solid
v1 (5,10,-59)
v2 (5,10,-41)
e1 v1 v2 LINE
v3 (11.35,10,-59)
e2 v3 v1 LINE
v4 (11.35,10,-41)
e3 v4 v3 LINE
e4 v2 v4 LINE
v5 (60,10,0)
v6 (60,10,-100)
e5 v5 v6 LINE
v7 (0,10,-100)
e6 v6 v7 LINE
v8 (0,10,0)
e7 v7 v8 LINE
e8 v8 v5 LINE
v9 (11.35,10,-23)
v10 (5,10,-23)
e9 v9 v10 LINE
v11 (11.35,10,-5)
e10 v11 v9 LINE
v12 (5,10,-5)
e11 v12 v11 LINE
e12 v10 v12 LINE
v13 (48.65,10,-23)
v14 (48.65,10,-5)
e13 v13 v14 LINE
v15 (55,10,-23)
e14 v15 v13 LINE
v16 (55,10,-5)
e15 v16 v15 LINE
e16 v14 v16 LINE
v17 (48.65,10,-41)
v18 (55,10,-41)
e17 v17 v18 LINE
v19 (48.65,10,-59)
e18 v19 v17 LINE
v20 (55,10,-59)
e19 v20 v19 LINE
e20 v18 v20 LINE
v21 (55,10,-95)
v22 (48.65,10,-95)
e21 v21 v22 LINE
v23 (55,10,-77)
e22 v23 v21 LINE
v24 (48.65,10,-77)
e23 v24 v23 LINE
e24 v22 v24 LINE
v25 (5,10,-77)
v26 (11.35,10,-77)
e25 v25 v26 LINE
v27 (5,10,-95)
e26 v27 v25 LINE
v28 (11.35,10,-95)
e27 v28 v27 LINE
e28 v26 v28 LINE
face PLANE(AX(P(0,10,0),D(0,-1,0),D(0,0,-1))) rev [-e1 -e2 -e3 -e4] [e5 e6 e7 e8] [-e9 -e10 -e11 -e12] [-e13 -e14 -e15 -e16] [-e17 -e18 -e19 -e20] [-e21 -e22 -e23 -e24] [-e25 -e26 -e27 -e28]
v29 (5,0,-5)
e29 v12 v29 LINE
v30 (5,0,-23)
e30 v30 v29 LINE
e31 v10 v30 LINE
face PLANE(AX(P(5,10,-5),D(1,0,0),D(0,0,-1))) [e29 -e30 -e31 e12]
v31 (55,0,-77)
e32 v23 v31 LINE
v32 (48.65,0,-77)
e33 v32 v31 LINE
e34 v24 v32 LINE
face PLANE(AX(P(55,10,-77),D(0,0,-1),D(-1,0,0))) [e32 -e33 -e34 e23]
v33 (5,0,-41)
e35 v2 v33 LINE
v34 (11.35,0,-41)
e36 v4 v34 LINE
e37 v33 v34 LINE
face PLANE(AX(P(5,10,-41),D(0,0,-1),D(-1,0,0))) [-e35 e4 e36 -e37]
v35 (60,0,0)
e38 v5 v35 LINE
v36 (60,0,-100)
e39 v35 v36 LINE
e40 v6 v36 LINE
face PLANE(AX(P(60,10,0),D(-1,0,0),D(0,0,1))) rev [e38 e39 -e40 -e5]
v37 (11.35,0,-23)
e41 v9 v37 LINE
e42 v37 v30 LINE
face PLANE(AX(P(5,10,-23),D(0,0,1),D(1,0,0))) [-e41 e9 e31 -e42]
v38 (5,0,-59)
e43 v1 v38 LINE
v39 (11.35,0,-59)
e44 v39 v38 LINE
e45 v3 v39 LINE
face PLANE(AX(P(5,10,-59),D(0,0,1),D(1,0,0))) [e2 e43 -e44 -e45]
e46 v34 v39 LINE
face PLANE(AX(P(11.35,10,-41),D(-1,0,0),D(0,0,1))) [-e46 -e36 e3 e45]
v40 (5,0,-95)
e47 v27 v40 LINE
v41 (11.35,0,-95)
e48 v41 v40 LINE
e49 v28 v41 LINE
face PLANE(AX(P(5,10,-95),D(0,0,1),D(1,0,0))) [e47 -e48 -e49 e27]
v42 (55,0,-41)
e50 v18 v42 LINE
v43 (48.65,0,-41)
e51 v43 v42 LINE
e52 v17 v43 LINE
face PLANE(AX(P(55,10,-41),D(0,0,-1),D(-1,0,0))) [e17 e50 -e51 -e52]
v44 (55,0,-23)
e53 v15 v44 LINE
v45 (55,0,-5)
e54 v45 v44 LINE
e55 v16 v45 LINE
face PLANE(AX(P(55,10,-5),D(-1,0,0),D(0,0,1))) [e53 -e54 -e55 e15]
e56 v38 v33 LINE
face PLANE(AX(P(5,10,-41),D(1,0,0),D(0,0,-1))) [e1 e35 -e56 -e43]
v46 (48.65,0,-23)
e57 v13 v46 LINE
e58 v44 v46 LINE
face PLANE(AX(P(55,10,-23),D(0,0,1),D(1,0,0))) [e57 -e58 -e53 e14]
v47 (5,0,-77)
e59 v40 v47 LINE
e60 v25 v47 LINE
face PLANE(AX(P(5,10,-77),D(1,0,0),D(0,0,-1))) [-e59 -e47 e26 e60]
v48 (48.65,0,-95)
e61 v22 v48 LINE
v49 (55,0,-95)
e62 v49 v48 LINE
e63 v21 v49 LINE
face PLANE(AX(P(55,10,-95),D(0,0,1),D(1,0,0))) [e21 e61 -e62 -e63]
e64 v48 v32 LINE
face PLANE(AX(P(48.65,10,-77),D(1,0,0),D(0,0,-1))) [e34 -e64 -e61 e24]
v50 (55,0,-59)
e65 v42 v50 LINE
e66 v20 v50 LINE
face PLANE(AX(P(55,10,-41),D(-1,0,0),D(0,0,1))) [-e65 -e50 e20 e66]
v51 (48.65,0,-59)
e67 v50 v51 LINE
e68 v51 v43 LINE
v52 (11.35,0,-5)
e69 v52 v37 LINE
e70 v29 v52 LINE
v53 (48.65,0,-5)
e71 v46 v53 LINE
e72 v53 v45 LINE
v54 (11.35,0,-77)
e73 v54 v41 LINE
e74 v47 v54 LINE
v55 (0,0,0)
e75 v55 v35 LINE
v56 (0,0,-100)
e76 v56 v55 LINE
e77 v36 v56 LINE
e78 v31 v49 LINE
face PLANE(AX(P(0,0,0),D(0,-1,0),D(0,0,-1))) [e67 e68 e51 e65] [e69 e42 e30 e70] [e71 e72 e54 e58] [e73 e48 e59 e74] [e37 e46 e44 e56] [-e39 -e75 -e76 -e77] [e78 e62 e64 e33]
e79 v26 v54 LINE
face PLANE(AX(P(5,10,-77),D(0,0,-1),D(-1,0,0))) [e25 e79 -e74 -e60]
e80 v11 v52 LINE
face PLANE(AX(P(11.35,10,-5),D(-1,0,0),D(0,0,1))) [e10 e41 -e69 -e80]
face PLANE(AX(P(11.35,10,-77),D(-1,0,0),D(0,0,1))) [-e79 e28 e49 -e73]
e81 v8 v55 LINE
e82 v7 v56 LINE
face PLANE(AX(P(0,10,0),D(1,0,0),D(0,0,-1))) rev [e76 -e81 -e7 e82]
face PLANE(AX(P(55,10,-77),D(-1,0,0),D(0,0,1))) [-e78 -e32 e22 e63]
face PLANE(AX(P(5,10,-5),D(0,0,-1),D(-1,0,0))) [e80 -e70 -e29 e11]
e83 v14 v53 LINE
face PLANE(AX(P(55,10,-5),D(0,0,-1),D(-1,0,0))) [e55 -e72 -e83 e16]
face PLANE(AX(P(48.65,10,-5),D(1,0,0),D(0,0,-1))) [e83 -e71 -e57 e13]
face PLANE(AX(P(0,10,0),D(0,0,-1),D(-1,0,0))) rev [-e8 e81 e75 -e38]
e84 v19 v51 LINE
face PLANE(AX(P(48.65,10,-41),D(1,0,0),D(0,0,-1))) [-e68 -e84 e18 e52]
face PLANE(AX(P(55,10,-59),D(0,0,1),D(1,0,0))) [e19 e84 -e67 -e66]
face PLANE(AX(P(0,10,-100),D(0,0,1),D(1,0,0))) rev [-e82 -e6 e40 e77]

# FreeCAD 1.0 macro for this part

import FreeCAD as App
import Part
import Sketcher
Q = App.Units.Quantity


def add_polygon(sketch, points):
    """Adds a closed chain of lines whose ends are joined by coincident constraints."""
    first, n = sketch.GeometryCount, len(points)
    for a, b in zip(points, points[1:] + points[:1]):
        sketch.addGeometry(Part.LineSegment(App.Vector(*a, 0), App.Vector(*b, 0)), False)
    for i in range(n):
        sketch.addConstraint(Sketcher.Constraint("Coincident", first + i, 2, first + (i + 1) % n, 1))

doc = App.newDocument("Part")
params = doc.addObject("Spreadsheet::Sheet", "Params")
for row, (alias, value) in enumerate([
    ("sketch1_width", "60 mm"),
    ("sketch1_height", "100 mm"),
    ("pad1_length", "10 mm"),
    ("sketch2_height", "18 mm"),
    ("sketch2_width", "6.35 mm"),
    ("pocket1_length", "10 mm"),
], start=1):
    params.set(f"A{row}", alias)
    params.set(f"B{row}", "=" + value)
    params.setAlias(f"B{row}", alias)

body = doc.addObject("PartDesign::Body", "Body")

sketch1 = body.newObject("Sketcher::SketchObject", "Sketch")
sketch1.AttachmentSupport = (doc.getObject("XZ_Plane"), [""])
sketch1.MapMode = "FlatFace"
add_polygon(sketch1, [(0, -100), (0, 0), (60, 0), (60, -100)])
sketch1.addConstraint([
    Sketcher.Constraint("Vertical", 0),
    Sketcher.Constraint("Horizontal", 1),
    Sketcher.Constraint("Vertical", 2),
    Sketcher.Constraint("Horizontal", 3),
    Sketcher.Constraint("Coincident", 0, 2, -1, 1),
    Sketcher.Constraint("DistanceX", 1, 1, 1, 2, Q("60 mm")),
    Sketcher.Constraint("DistanceY", 0, 1, 0, 2, Q("100 mm")),
])
sketch1.setExpression("Constraints[9]", "Params.sketch1_width")
sketch1.setExpression("Constraints[10]", "Params.sketch1_height")
pad1 = body.newObject("PartDesign::Pad", "Pad")
pad1.Profile = sketch1
pad1.setExpression("Length", "Params.pad1_length")
pad1.Reversed = True

sketch2 = body.newObject("Sketcher::SketchObject", "Sketch001")
sketch2.AttachmentSupport = (doc.getObject("XZ_Plane"), [""])
sketch2.MapMode = "FlatFace"
add_polygon(sketch2, [(5, -23), (5, -5), (11, -5), (11, -23)])
add_polygon(sketch2, [(5, -59), (5, -41), (11, -41), (11, -59)])
add_polygon(sketch2, [(5, -95), (5, -77), (11, -77), (11, -95)])
add_polygon(sketch2, [(49, -95), (49, -77), (55, -77), (55, -95)])
add_polygon(sketch2, [(49, -59), (49, -41), (55, -41), (55, -59)])
add_polygon(sketch2, [(49, -23), (49, -5), (55, -5), (55, -23)])
sketch2.addConstraint([
    Sketcher.Constraint("Vertical", 0),
    Sketcher.Constraint("Horizontal", 1),
    Sketcher.Constraint("Vertical", 2),
    Sketcher.Constraint("Horizontal", 3),
    Sketcher.Constraint("Vertical", 4),
    Sketcher.Constraint("Horizontal", 5),
    Sketcher.Constraint("Vertical", 6),
    Sketcher.Constraint("Horizontal", 7),
    Sketcher.Constraint("Vertical", 8),
    Sketcher.Constraint("Horizontal", 9),
    Sketcher.Constraint("Vertical", 10),
    Sketcher.Constraint("Horizontal", 11),
    Sketcher.Constraint("Vertical", 12),
    Sketcher.Constraint("Horizontal", 13),
    Sketcher.Constraint("Vertical", 14),
    Sketcher.Constraint("Horizontal", 15),
    Sketcher.Constraint("Vertical", 16),
    Sketcher.Constraint("Horizontal", 17),
    Sketcher.Constraint("Vertical", 18),
    Sketcher.Constraint("Horizontal", 19),
    Sketcher.Constraint("Vertical", 20),
    Sketcher.Constraint("Horizontal", 21),
    Sketcher.Constraint("Vertical", 22),
    Sketcher.Constraint("Horizontal", 23),
    Sketcher.Constraint("Horizontal", 9, 2, 12, 2),
    Sketcher.Constraint("Horizontal", 11, 2, 14, 2),
    Sketcher.Constraint("Horizontal", 5, 2, 16, 2),
    Sketcher.Constraint("Horizontal", 7, 2, 18, 2),
    Sketcher.Constraint("Horizontal", 1, 2, 20, 2),
    Sketcher.Constraint("Horizontal", 3, 2, 22, 2),
    Sketcher.Constraint("Vertical", 3, 2, 4, 2),
    Sketcher.Constraint("Vertical", 2, 2, 5, 2),
    Sketcher.Constraint("Vertical", 7, 2, 8, 2),
    Sketcher.Constraint("Vertical", 6, 2, 9, 2),
    Sketcher.Constraint("Vertical", 15, 2, 16, 2),
    Sketcher.Constraint("Vertical", 14, 2, 17, 2),
    Sketcher.Constraint("Vertical", 19, 2, 20, 2),
    Sketcher.Constraint("Vertical", 18, 2, 21, 2),
    Sketcher.Constraint("Equal", 11, 13),
    Sketcher.Constraint("Equal", 2, 4),
    Sketcher.Constraint("Equal", 6, 8),
    Sketcher.Constraint("DistanceY", 0, 1, 0, 2, Q("18 mm")),
    Sketcher.Constraint("DistanceX", -1, 1, 0, 2, Q("5 mm")),
    Sketcher.Constraint("DistanceY", 0, 2, -1, 1, Q("5 mm")),
    Sketcher.Constraint("DistanceY", 4, 2, -1, 1, Q("41 mm")),
    Sketcher.Constraint("DistanceY", 8, 2, -1, 1, Q("77 mm")),
    Sketcher.Constraint("DistanceX", -1, 1, 13, 2, Q("55 mm")),
    Sketcher.Constraint("DistanceX", 1, 1, 1, 2, Q("6.35 mm")),
])
sketch2.setExpression("Constraints[65]", "Params.sketch2_height")
sketch2.setExpression("Constraints[71]", "Params.sketch2_width")
pocket1 = body.newObject("PartDesign::Pocket", "Pocket")
pocket1.Profile = sketch2
pocket1.setExpression("Length", "Params.pocket1_length")

doc.recompute()
